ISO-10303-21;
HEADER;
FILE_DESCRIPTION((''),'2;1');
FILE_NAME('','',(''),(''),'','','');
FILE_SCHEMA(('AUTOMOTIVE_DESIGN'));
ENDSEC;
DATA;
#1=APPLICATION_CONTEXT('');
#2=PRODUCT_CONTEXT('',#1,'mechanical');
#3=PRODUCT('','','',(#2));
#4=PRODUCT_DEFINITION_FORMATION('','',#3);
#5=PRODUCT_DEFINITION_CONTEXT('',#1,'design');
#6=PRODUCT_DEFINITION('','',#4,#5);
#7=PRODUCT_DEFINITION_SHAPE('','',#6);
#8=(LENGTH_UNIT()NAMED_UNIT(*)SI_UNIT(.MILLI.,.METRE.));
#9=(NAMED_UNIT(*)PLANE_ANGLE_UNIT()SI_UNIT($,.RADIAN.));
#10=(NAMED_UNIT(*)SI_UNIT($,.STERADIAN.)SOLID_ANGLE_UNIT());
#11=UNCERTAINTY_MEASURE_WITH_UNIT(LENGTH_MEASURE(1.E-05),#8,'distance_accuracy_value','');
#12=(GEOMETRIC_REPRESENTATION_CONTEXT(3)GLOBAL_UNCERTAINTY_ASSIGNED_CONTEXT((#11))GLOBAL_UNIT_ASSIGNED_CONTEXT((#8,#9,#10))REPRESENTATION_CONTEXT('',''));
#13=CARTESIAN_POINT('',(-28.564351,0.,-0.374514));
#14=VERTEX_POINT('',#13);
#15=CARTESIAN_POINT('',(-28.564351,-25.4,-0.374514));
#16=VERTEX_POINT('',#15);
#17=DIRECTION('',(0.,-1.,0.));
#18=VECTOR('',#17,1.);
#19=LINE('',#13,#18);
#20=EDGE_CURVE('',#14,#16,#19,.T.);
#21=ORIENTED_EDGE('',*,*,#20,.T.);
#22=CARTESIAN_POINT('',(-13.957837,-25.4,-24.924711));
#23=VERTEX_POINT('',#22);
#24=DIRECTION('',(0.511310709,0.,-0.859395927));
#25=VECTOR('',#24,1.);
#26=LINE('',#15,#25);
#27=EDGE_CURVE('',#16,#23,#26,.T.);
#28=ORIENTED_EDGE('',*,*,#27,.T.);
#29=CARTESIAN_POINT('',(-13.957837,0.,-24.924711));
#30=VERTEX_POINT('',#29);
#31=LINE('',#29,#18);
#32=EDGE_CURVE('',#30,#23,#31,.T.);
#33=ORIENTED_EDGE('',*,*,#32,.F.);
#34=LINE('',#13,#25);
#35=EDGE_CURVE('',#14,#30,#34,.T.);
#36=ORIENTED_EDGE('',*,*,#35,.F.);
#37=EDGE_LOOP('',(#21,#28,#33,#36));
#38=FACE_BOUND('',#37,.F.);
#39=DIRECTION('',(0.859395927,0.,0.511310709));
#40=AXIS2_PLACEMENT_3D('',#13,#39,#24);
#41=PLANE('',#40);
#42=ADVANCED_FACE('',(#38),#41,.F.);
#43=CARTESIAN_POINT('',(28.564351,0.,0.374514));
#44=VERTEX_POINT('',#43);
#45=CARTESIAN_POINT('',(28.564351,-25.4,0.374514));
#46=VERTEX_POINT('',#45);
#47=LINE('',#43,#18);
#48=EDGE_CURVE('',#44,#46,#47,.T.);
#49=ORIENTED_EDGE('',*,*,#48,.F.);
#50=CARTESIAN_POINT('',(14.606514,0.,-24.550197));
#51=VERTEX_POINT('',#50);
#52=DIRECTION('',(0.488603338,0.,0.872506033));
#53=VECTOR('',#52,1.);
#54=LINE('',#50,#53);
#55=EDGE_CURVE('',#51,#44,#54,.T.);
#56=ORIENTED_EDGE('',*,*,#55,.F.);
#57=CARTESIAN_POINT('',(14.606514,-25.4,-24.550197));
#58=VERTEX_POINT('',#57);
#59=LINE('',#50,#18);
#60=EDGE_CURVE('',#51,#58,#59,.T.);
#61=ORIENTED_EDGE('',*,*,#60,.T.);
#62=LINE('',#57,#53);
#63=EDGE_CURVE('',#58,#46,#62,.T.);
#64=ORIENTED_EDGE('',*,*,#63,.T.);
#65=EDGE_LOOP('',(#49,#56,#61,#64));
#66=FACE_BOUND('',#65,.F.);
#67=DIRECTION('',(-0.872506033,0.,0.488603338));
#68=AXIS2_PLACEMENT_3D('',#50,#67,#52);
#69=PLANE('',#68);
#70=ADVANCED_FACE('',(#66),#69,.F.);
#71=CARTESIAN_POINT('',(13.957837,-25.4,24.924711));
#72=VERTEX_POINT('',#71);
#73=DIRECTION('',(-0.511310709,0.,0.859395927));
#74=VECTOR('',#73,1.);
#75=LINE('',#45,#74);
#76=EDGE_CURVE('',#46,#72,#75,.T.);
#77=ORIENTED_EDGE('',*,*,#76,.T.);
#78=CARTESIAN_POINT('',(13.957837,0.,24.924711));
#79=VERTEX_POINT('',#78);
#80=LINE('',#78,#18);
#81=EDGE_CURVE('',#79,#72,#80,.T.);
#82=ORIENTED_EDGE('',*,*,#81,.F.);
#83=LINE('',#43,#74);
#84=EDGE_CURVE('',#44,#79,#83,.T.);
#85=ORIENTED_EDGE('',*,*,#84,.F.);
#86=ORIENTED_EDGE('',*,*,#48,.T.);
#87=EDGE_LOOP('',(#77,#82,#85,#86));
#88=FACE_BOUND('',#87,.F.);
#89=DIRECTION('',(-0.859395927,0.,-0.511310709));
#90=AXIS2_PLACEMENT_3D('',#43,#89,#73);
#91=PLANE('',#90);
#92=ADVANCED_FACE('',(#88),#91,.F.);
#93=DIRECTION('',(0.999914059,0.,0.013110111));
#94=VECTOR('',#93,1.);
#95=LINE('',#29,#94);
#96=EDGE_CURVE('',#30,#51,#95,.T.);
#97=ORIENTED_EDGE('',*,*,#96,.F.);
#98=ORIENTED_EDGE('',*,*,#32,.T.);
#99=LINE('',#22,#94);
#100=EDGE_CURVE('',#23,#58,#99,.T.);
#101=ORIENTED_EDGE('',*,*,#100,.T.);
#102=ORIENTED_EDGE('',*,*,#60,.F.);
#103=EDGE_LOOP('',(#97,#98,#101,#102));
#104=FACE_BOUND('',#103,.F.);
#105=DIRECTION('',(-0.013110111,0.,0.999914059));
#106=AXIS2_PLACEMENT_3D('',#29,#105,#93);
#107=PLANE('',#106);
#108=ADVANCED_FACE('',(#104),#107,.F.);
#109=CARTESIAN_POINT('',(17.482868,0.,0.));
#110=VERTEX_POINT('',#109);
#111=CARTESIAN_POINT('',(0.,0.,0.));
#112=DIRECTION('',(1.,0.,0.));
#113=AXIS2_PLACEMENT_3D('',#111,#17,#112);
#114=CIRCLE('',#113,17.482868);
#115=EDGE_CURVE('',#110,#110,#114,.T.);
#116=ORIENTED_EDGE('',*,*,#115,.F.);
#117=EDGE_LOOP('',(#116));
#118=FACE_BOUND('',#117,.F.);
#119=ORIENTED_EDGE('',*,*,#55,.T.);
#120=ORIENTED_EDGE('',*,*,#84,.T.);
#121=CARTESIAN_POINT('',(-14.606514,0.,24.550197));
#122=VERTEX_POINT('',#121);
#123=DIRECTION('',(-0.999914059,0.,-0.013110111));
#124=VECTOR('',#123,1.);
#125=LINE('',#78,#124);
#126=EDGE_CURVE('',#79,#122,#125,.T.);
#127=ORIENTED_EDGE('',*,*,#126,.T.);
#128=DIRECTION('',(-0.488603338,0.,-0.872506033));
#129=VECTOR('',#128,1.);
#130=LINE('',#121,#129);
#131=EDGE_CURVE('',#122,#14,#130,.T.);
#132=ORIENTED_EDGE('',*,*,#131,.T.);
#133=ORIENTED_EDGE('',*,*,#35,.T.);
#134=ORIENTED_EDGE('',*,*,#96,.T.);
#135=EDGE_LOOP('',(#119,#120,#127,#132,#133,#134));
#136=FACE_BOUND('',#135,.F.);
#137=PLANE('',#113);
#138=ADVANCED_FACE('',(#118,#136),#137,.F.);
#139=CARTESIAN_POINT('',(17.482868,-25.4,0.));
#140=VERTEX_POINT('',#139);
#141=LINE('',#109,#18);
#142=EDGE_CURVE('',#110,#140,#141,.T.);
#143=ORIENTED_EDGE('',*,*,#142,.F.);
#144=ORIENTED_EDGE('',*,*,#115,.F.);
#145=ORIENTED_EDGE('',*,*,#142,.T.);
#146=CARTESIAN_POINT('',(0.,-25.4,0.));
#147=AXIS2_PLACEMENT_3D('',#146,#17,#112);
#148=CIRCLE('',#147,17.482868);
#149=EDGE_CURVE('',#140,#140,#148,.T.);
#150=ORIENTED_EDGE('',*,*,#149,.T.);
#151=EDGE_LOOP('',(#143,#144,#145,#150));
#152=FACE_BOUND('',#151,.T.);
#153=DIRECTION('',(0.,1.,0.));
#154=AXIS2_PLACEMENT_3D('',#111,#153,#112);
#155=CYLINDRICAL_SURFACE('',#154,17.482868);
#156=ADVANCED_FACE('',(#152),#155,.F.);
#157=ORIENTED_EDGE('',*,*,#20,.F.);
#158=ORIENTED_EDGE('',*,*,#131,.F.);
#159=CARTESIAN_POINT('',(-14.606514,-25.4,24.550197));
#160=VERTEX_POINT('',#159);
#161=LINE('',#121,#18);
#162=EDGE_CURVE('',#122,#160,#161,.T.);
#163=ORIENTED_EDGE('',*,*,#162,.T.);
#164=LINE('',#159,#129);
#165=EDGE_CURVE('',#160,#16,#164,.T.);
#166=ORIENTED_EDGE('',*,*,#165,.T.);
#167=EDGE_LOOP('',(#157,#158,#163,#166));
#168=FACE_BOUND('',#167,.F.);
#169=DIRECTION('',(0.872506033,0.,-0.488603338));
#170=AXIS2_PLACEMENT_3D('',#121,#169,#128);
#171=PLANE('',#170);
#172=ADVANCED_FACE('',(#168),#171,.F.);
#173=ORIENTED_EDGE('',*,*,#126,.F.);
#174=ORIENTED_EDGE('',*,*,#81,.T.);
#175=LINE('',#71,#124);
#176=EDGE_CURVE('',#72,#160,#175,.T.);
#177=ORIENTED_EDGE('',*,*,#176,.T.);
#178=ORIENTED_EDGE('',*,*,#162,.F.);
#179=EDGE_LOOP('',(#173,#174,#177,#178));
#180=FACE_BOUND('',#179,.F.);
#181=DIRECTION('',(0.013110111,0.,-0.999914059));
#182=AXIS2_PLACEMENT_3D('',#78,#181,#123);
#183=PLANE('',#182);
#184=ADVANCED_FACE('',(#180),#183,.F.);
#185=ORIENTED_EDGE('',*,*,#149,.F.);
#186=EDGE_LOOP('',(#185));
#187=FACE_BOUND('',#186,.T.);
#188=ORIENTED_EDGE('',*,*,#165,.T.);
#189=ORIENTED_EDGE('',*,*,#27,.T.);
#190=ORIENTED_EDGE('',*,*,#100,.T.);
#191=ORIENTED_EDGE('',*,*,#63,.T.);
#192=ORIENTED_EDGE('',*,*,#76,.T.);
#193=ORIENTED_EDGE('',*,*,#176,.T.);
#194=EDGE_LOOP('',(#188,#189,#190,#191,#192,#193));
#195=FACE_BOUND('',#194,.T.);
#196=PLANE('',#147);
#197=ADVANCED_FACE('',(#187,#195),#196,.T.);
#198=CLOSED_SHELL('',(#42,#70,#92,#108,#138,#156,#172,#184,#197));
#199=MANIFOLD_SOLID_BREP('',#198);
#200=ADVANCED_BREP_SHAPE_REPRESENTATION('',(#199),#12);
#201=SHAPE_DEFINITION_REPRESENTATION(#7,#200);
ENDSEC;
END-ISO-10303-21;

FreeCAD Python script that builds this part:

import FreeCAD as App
import Part
import Sketcher
Q = App.Units.Quantity

doc = App.newDocument("Part")
body = doc.addObject("PartDesign::Body", "Body")

# Sketch on XZ plane
sketch1 = doc.addObject("Sketcher::SketchObject", "Sketch")
body.addObject(sketch1)
sketch1.AttachmentSupport = (doc.XZ_Plane, [""])
sketch1.MapMode = "FlatFace"
sketch1.addGeometry(Part.LineSegment(App.Vector(-15, 25, 0), App.Vector(-29, 0, 0)), False)
sketch1.addGeometry(Part.LineSegment(App.Vector(-29, 0, 0), App.Vector(-14, -25, 0)), False)
sketch1.addGeometry(Part.LineSegment(App.Vector(-14, -25, 0), App.Vector(15, -25, 0)), False)
sketch1.addGeometry(Part.LineSegment(App.Vector(15, -25, 0), App.Vector(29, 0, 0)), False)
sketch1.addGeometry(Part.LineSegment(App.Vector(29, 0, 0), App.Vector(14, 25, 0)), False)
sketch1.addGeometry(Part.LineSegment(App.Vector(14, 25, 0), App.Vector(-15, 25, 0)), False)
sketch1.addGeometry(Part.Circle(App.Vector(0, 0, 0), App.Vector(0, 0, 1), 17), False)
sketch1.addConstraint(Sketcher.Constraint("Coincident", 0, 2, 1, 1))
sketch1.addConstraint(Sketcher.Constraint("Coincident", 1, 2, 2, 1))
sketch1.addConstraint(Sketcher.Constraint("Coincident", 2, 2, 3, 1))
sketch1.addConstraint(Sketcher.Constraint("Coincident", 3, 2, 4, 1))
sketch1.addConstraint(Sketcher.Constraint("Coincident", 4, 2, 5, 1))
sketch1.addConstraint(Sketcher.Constraint("Coincident", 5, 2, 0, 1))
sketch1.addConstraint(Sketcher.Constraint("Coincident", 6, 3, -1, 1))
sketch1.addConstraint(Sketcher.Constraint("Symmetric", 0, 2, 3, 2, -1, 1))
sketch1.addConstraint(Sketcher.Constraint("Symmetric", 1, 2, 4, 2, -1, 1))
sketch1.addConstraint(Sketcher.Constraint("Symmetric", 2, 2, 5, 2, -1, 1))
sketch1.addConstraint(Sketcher.Constraint("Equal", 0, 1))
sketch1.addConstraint(Sketcher.Constraint("Equal", 1, 2))
sketch1.addConstraint(Sketcher.Constraint("Diameter", 6, Q("34.965736 mm")))
sketch1.addConstraint(Sketcher.Constraint("DistanceX", 0, 2, 3, 2, Q("57.128702 mm")))
sketch1.addConstraint(Sketcher.Constraint("DistanceY", 1, 2, -1, 1, Q("24.924711 mm")))
sketch1.addConstraint(Sketcher.Constraint("DistanceX", 1, 2, 2, 2, Q("28.564351 mm")))
sketch1.addConstraint(Sketcher.Constraint("DistanceY", 2, 2, 3, 2, Q("24.924711 mm")))
pad1 = doc.addObject("PartDesign::Pad", "Pad")
body.addObject(pad1)
pad1.Profile = sketch1
pad1.Length = Q("1 in")

# Sketch on XZ plane
sketch2 = doc.addObject("Sketcher::SketchObject", "Sketch001")
body.addObject(sketch2)
sketch2.AttachmentSupport = (doc.XZ_Plane, [""])
sketch2.MapMode = "FlatFace"
sketch2.addGeometry(Part.LineSegment(App.Vector(-15, 25, 0), App.Vector(-29, 0, 0)), False)
sketch2.addGeometry(Part.LineSegment(App.Vector(-29, 0, 0), App.Vector(-14, -25, 0)), False)
sketch2.addGeometry(Part.LineSegment(App.Vector(-14, -25, 0), App.Vector(15, -25, 0)), False)
sketch2.addGeometry(Part.LineSegment(App.Vector(15, -25, 0), App.Vector(29, 0, 0)), False)
sketch2.addGeometry(Part.LineSegment(App.Vector(29, 0, 0), App.Vector(14, 25, 0)), False)
sketch2.addGeometry(Part.LineSegment(App.Vector(14, 25, 0), App.Vector(-15, 25, 0)), False)
sketch2.addGeometry(Part.Circle(App.Vector(0, 0, 0), App.Vector(0, 0, 1), 17), False)
sketch2.addConstraint(Sketcher.Constraint("Coincident", 0, 2, 1, 1))
sketch2.addConstraint(Sketcher.Constraint("Coincident", 1, 2, 2, 1))
sketch2.addConstraint(Sketcher.Constraint("Coincident", 2, 2, 3, 1))
sketch2.addConstraint(Sketcher.Constraint("Coincident", 3, 2, 4, 1))
sketch2.addConstraint(Sketcher.Constraint("Coincident", 4, 2, 5, 1))
sketch2.addConstraint(Sketcher.Constraint("Coincident", 5, 2, 0, 1))
sketch2.addConstraint(Sketcher.Constraint("Coincident", 6, 3, -1, 1))
sketch2.addConstraint(Sketcher.Constraint("Symmetric", 0, 2, 3, 2, -1, 1))
sketch2.addConstraint(Sketcher.Constraint("Symmetric", 1, 2, 4, 2, -1, 1))
sketch2.addConstraint(Sketcher.Constraint("Symmetric", 2, 2, 5, 2, -1, 1))
sketch2.addConstraint(Sketcher.Constraint("Equal", 0, 1))
sketch2.addConstraint(Sketcher.Constraint("Equal", 1, 2))
sketch2.addConstraint(Sketcher.Constraint("Diameter", 6, Q("34.965736 mm")))
sketch2.addConstraint(Sketcher.Constraint("DistanceX", 0, 2, 3, 2, Q("57.128702 mm")))
sketch2.addConstraint(Sketcher.Constraint("DistanceY", 1, 2, -1, 1, Q("24.924711 mm")))
sketch2.addConstraint(Sketcher.Constraint("DistanceX", 1, 2, 2, 2, Q("28.564351 mm")))
sketch2.addConstraint(Sketcher.Constraint("DistanceY", 2, 2, 3, 2, Q("24.924711 mm")))
pad2 = doc.addObject("PartDesign::Pad", "Pad001")
body.addObject(pad2)
pad2.Profile = sketch2
pad2.Length = Q("1 in")

doc.recompute()
